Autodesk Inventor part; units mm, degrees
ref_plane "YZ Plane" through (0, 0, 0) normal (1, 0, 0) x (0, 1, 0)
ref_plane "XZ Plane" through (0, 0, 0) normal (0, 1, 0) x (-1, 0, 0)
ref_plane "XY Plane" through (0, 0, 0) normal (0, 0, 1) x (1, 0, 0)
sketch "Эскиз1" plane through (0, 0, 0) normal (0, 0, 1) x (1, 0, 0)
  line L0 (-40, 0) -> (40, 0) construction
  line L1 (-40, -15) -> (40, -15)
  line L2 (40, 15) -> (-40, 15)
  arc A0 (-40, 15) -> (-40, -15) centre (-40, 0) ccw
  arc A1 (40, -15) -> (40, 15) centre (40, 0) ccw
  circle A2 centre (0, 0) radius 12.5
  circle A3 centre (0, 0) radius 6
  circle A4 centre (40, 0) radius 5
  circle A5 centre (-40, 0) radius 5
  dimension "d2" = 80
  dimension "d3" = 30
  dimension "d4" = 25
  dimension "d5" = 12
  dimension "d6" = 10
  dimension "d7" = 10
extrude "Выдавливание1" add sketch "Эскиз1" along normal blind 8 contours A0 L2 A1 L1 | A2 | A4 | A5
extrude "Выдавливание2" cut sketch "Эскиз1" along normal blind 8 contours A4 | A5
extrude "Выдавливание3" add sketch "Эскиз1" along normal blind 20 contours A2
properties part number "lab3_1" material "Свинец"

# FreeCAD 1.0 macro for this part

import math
import FreeCAD as App
import Part
import Sketcher
from FreeCAD import Vector

doc = App.newDocument("Part")
body = doc.addObject("PartDesign::Body", "Body")

# Sketch on XY plane
sketch1 = body.newObject("Sketcher::SketchObject", "Sketch")
sketch1.AttachmentSupport = (doc.getObject("XY_Plane"), [""])
sketch1.MapMode = "FlatFace"
sketch1.addGeometry(Part.ArcOfCircle(Part.Circle(Vector(-40, 0, 0), Vector(0, 0, 1), 15), math.radians(90), math.radians(270)), False)
sketch1.addGeometry(Part.LineSegment(Vector(-40, -15, 0), Vector(40, -15, 0)), False)
sketch1.addGeometry(Part.ArcOfCircle(Part.Circle(Vector(40, 0, 0), Vector(0, 0, 1), 15), math.radians(-90), math.radians(90)), False)
sketch1.addGeometry(Part.LineSegment(Vector(40, 15, 0), Vector(-40, 15, 0)), False)
sketch1.addGeometry(Part.Circle(Vector(0, 0, 0), Vector(0, 0, 1), 6), False)
sketch1.addConstraint(Sketcher.Constraint("Tangent", 0, 2, 1, 1))
sketch1.addConstraint(Sketcher.Constraint("Tangent", 1, 2, 2, 1))
sketch1.addConstraint(Sketcher.Constraint("Tangent", 2, 2, 3, 1))
sketch1.addConstraint(Sketcher.Constraint("Tangent", 3, 2, 0, 1))
sketch1.addConstraint(Sketcher.Constraint("Horizontal", 1))
sketch1.addConstraint(Sketcher.Constraint("Horizontal", 3))
sketch1.addConstraint(Sketcher.Constraint("Coincident", 4, 3, -1, 1))
sketch1.addConstraint(Sketcher.Constraint("Symmetric", 0, 3, 2, 3, -1, 1))
sketch1.addConstraint(Sketcher.Constraint("Diameter", 4, 12.0))
sketch1.addConstraint(Sketcher.Constraint("Radius", 0, 15.0))
sketch1.addConstraint(Sketcher.Constraint("DistanceX", 1, 1, 1, 2, 80.0))
pad1 = body.newObject("PartDesign::Pad", "Pad")
pad1.Profile = sketch1
pad1.Length = 8

# Sketch on XY plane
sketch2 = body.newObject("Sketcher::SketchObject", "Sketch001")
sketch2.AttachmentSupport = (doc.getObject("XY_Plane"), [""])
sketch2.MapMode = "FlatFace"
sketch2.addGeometry(Part.Circle(Vector(40, 0, 0), Vector(0, 0, 1), 5), False)
sketch2.addGeometry(Part.Circle(Vector(-40, 0, 0), Vector(0, 0, 1), 5), False)
sketch2.addConstraint(Sketcher.Constraint("Equal", 0, 1))
sketch2.addConstraint(Sketcher.Constraint("Symmetric", 0, 3, 1, 3, -1, 1))
sketch2.addConstraint(Sketcher.Constraint("PointOnObject", 0, 3, -1))
sketch2.addConstraint(Sketcher.Constraint("Diameter", 0, 10.0))
sketch2.addConstraint(Sketcher.Constraint("DistanceX", 1, 3, 0, 3, 80.0))
pocket1 = body.newObject("PartDesign::Pocket", "Pocket")
pocket1.Profile = sketch2
pocket1.Length = 8
pocket1.Reversed = True

# Sketch on XY plane
sketch3 = body.newObject("Sketcher::SketchObject", "Sketch002")
sketch3.AttachmentSupport = (doc.getObject("XY_Plane"), [""])
sketch3.MapMode = "FlatFace"
sketch3.addGeometry(Part.Circle(Vector(0, 0, 0), Vector(0, 0, 1), 12), False)
sketch3.addGeometry(Part.Circle(Vector(0, 0, 0), Vector(0, 0, 1), 6), False)
sketch3.addConstraint(Sketcher.Constraint("Coincident", 0, 3, -1, 1))
sketch3.addConstraint(Sketcher.Constraint("Coincident", 1, 3, -1, 1))
sketch3.addConstraint(Sketcher.Constraint("Diameter", 0, 25.0))
sketch3.addConstraint(Sketcher.Constraint("Diameter", 1, 12.0))
pad2 = body.newObject("PartDesign::Pad", "Pad001")
pad2.Profile = sketch3
pad2.Length = 20

doc.recompute()
